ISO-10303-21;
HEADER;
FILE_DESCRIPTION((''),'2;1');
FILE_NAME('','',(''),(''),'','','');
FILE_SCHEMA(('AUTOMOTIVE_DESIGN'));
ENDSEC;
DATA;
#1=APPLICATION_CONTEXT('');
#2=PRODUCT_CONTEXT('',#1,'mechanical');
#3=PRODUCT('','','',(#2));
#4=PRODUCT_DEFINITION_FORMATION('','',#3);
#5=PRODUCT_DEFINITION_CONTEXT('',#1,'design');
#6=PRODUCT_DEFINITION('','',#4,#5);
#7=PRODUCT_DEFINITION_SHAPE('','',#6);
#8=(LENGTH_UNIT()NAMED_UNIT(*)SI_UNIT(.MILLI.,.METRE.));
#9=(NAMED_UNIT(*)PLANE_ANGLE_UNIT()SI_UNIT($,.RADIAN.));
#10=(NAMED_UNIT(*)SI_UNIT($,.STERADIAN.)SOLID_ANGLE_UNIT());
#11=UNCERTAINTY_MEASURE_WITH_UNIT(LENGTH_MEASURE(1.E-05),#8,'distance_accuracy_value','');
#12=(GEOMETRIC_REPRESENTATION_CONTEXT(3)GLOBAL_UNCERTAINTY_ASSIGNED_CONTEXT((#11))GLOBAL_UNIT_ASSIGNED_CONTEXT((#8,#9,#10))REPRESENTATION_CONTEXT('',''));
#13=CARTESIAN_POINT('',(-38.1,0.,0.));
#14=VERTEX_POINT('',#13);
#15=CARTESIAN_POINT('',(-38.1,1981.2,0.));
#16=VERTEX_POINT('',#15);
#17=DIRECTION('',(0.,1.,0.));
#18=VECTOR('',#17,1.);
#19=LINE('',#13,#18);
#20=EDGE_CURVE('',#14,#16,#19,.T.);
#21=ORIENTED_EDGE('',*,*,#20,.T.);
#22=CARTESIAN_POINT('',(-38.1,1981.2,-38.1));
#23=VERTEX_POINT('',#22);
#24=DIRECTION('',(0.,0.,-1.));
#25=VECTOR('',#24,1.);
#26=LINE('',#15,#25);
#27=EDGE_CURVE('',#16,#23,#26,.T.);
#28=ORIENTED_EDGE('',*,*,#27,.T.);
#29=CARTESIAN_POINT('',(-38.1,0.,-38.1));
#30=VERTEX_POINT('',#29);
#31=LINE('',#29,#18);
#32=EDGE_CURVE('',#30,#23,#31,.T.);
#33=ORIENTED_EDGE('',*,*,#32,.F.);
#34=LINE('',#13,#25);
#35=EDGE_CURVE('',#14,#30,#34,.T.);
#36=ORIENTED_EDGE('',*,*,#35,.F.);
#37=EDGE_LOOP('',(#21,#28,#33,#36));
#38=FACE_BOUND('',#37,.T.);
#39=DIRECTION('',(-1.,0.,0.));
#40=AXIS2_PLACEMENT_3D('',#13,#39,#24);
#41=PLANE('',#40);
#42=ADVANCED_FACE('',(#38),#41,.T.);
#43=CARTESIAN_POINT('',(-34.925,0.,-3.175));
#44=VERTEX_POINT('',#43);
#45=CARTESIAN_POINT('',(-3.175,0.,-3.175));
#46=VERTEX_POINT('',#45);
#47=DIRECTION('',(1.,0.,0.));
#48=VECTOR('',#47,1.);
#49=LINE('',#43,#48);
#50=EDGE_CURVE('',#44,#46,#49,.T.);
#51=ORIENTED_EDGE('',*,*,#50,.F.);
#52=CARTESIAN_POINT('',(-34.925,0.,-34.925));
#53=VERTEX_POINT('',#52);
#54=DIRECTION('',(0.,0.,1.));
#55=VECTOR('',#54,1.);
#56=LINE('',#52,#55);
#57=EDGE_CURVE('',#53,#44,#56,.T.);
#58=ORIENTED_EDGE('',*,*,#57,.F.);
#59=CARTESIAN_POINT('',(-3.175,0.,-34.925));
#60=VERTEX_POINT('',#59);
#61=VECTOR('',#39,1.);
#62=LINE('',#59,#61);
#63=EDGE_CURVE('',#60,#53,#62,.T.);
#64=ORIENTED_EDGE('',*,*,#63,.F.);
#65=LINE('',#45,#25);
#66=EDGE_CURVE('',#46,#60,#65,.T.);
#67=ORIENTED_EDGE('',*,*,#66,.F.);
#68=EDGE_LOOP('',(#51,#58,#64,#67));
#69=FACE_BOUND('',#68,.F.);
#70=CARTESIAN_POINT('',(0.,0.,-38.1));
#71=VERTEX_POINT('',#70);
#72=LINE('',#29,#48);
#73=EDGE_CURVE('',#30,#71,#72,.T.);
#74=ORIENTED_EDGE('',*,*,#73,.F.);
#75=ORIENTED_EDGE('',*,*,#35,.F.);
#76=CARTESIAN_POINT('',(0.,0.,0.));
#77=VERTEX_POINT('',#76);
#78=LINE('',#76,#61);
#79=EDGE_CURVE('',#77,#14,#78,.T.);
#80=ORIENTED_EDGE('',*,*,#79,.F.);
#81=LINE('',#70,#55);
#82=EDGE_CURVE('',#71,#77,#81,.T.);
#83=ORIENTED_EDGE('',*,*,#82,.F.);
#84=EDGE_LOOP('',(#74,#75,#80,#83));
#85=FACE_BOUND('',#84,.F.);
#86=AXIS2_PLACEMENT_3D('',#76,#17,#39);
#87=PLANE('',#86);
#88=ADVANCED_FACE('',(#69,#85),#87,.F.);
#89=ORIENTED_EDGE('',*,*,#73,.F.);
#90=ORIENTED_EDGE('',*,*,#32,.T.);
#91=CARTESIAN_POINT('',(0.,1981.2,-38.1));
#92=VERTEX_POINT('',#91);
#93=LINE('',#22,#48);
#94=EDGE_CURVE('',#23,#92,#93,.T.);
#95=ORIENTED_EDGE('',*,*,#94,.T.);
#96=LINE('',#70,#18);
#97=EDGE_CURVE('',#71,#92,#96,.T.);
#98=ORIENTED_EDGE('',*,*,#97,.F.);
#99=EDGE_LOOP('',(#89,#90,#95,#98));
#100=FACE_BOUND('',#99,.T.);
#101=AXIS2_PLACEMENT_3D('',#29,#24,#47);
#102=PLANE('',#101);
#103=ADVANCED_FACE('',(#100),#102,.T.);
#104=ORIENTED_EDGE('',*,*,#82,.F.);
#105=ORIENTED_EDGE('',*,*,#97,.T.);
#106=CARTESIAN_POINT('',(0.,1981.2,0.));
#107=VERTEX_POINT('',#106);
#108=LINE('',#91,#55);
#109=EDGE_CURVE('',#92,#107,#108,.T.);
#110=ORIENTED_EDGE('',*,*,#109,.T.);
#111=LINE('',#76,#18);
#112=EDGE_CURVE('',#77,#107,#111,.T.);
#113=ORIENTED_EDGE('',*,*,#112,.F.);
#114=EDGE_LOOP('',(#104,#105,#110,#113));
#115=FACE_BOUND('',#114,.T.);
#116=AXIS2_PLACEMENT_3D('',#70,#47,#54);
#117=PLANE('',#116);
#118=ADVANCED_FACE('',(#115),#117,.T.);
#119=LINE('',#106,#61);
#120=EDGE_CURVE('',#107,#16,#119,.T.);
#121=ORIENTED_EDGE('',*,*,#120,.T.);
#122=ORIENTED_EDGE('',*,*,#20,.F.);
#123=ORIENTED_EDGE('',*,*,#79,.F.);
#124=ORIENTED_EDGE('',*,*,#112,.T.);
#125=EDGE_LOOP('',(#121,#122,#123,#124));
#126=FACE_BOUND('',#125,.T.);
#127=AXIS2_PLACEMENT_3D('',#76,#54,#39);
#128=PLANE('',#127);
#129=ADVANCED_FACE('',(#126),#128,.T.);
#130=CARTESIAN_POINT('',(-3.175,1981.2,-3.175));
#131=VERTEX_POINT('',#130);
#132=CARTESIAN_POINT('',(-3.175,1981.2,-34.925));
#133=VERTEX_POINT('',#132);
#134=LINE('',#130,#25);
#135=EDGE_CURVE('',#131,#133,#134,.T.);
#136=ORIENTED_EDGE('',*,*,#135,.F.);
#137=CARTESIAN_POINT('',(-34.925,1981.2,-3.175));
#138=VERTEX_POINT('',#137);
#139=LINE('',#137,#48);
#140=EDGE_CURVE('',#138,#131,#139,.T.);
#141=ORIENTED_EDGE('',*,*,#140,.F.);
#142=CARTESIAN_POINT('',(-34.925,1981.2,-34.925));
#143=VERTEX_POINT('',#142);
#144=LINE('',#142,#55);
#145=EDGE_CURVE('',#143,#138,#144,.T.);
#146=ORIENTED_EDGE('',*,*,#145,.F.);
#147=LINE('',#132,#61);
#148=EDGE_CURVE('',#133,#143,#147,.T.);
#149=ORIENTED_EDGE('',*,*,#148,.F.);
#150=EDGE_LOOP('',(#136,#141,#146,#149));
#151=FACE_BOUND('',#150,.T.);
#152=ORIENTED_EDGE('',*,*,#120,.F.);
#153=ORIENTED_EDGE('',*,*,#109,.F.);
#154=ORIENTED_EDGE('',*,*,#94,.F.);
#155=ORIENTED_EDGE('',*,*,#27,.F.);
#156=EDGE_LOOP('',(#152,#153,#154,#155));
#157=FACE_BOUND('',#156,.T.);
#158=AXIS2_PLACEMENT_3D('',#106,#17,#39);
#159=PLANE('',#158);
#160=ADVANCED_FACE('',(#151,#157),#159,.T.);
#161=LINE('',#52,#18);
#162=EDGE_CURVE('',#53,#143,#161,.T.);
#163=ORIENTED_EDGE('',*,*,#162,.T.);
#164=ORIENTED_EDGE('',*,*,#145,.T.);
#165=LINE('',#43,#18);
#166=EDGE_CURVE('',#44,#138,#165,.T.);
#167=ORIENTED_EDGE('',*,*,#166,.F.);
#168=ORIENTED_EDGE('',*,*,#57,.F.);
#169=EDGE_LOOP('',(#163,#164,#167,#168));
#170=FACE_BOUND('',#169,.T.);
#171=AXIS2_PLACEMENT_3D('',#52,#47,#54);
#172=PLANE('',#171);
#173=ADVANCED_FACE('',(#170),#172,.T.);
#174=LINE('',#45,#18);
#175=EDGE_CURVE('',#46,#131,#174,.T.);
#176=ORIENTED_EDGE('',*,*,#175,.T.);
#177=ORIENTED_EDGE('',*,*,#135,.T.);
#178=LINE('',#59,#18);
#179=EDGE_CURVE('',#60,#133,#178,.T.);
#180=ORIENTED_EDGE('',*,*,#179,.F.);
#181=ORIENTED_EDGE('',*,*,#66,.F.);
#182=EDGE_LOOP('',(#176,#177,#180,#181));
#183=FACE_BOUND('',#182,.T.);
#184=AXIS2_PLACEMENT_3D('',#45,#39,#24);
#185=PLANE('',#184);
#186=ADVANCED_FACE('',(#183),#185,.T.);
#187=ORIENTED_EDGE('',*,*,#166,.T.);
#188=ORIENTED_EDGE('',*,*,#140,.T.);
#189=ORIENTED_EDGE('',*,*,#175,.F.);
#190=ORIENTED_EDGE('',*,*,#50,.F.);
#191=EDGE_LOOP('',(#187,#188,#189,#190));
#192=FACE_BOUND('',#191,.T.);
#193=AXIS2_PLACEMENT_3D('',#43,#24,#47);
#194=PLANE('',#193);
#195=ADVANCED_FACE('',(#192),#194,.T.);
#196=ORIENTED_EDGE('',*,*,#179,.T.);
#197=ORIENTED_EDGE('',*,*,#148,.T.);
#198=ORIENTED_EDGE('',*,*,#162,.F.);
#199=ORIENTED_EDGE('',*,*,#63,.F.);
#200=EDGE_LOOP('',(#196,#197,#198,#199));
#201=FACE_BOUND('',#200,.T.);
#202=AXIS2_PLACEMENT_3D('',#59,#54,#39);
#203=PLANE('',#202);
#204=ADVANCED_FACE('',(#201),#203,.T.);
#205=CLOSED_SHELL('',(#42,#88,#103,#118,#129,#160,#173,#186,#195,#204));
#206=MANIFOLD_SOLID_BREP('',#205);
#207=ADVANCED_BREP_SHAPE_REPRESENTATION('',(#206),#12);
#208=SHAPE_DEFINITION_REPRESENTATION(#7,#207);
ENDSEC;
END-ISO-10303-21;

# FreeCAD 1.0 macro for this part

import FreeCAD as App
import Part
import Sketcher

V = App.Vector
Q = App.Units.Quantity

doc = App.newDocument("Part")
body = doc.addObject("PartDesign::Body", "Body")

# Sketch on XZ plane
sketch1 = body.newObject("Sketcher::SketchObject", "Sketch")
sketch1.AttachmentSupport = (doc.getObject("XZ_Plane"), [""])
sketch1.MapMode = "FlatFace"
sketch1.addGeometry([
    Part.LineSegment(V(-38, 0, 0), V(0, 0, 0)),  # 0
    Part.LineSegment(V(0, 0, 0), V(0, -38, 0)),  # 1
    Part.LineSegment(V(0, -38, 0), V(-38, -38, 0)),  # 2
    Part.LineSegment(V(-38, -38, 0), V(-38, 0, 0)),  # 3
    Part.LineSegment(V(-35, -3, 0), V(-35, -35, 0)),  # 4
    Part.LineSegment(V(-35, -35, 0), V(-3, -35, 0)),  # 5
    Part.LineSegment(V(-3, -35, 0), V(-3, -3, 0)),  # 6
    Part.LineSegment(V(-3, -3, 0), V(-35, -3, 0)),  # 7
], False)
sketch1.addConstraint([
    Sketcher.Constraint("Coincident", 0, 2, 1, 1),
    Sketcher.Constraint("Coincident", 1, 2, 2, 1),
    Sketcher.Constraint("Coincident", 2, 2, 3, 1),
    Sketcher.Constraint("Coincident", 3, 2, 0, 1),
    Sketcher.Constraint("Coincident", 4, 2, 5, 1),
    Sketcher.Constraint("Coincident", 5, 2, 6, 1),
    Sketcher.Constraint("Coincident", 6, 2, 7, 1),
    Sketcher.Constraint("Coincident", 7, 2, 4, 1),
    Sketcher.Constraint("Horizontal", 0),
    Sketcher.Constraint("Vertical", 1),
    Sketcher.Constraint("Horizontal", 2),
    Sketcher.Constraint("Vertical", 3),
    Sketcher.Constraint("Vertical", 4),
    Sketcher.Constraint("Horizontal", 5),
    Sketcher.Constraint("Vertical", 6),
    Sketcher.Constraint("Horizontal", 7),
    Sketcher.Constraint("Coincident", 0, 2, -1, 1),
    Sketcher.Constraint("Equal", 2, 1),
    Sketcher.Constraint("Equal", 7, 4),
    Sketcher.Constraint("DistanceX", 0, 1, 0, 2, Q("1.5 in")),
    Sketcher.Constraint("DistanceX", 5, 2, -1, 1, Q("0.125 in")),
    Sketcher.Constraint("DistanceY", 6, 2, -1, 1, Q("0.125 in")),
    Sketcher.Constraint("DistanceX", 2, 2, 4, 2, Q("0.125 in")),
])
pad1 = body.newObject("PartDesign::Pad", "Pad")
pad1.Profile = sketch1
pad1.Length = Q("78 in")
pad1.Reversed = True

doc.recompute()
